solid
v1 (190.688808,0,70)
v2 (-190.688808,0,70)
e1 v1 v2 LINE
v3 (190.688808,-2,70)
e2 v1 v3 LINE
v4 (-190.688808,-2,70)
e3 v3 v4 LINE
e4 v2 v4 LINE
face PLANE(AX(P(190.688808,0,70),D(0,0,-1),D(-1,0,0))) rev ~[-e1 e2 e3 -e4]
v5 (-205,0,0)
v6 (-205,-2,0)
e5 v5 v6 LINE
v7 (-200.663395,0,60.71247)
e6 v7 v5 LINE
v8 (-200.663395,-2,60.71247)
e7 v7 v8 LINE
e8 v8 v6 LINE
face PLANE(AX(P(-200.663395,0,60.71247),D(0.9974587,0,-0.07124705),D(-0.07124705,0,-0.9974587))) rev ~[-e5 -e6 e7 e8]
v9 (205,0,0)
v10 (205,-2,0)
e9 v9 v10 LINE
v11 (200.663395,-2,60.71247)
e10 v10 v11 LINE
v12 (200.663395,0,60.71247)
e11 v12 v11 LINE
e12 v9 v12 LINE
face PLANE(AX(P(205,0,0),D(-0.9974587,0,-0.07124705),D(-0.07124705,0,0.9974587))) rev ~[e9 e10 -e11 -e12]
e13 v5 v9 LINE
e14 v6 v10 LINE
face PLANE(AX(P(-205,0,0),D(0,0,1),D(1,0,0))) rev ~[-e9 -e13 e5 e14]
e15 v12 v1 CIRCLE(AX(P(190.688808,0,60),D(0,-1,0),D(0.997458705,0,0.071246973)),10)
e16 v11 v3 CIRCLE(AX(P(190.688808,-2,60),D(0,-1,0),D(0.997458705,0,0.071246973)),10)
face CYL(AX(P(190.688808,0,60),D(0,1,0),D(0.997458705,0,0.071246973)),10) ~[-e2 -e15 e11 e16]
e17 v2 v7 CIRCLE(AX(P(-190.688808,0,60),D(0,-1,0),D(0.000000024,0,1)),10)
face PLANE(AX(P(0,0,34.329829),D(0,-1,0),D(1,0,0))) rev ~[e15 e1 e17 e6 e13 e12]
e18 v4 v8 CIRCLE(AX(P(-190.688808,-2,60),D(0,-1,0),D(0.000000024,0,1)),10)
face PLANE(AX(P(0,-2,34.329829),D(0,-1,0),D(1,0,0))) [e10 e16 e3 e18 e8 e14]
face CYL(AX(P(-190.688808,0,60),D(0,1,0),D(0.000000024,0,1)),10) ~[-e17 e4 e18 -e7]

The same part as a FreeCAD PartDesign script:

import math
import FreeCAD as App
import Part
import Sketcher

doc = App.newDocument("Part")
body = doc.addObject("PartDesign::Body", "Body")

# Sketch on XZ plane
sketch1 = body.newObject("Sketcher::SketchObject", "Sketch")
sketch1.AttachmentSupport = (doc.getObject("XZ_Plane"), [""])
sketch1.MapMode = "FlatFace"
sketch1.addGeometry([
    Part.LineSegment(App.Vector(-205, 0, 0), App.Vector(205, 0, 0)),  # 0
    Part.LineSegment(App.Vector(205, 0, 0), App.Vector(200.663395, 60.71247, 0)),  # 1
    Part.ArcOfCircle(Part.Circle(App.Vector(190.688808, 60, 0), App.Vector(0, 0, 1), 10), math.radians(4.085612), math.radians(90.000001)),  # 2
    Part.LineSegment(App.Vector(190.688808, 70, 0), App.Vector(-190.688808, 70, 0)),  # 3
    Part.ArcOfCircle(Part.Circle(App.Vector(-190.688808, 60, 0), App.Vector(0, 0, 1), 10), math.radians(89.999999), math.radians(175.914388)),  # 4
    Part.LineSegment(App.Vector(-200.663395, 60.71247, 0), App.Vector(-205, 0, 0)),  # 5
], False)
sketch1.addConstraint([
    Sketcher.Constraint("Coincident", 0, 2, 1, 1),
    Sketcher.Constraint("Tangent", 1, 2, 2, 1),
    Sketcher.Constraint("Tangent", 2, 2, 3, 1),
    Sketcher.Constraint("Tangent", 3, 2, 4, 1),
    Sketcher.Constraint("Tangent", 4, 2, 5, 1),
    Sketcher.Constraint("Coincident", 5, 2, 0, 1),
    Sketcher.Constraint("Horizontal", 0),
    Sketcher.Constraint("Horizontal", 3),
    Sketcher.Constraint("Equal", 2, 4),
    Sketcher.Constraint("Symmetric", 0, 2, 5, 2, -1, 1),
    Sketcher.Constraint("Horizontal", 1, 2, 4, 2),
    Sketcher.Constraint("Radius", 2, 10.0),
    Sketcher.Constraint("DistanceX", 0, 1, 0, 2, 410.0),
    Sketcher.Constraint("DistanceY", -1, 1, 2, 3, 60.0),
    Sketcher.Constraint("Distance", 1, 60.867152),
])
pad1 = body.newObject("PartDesign::Pad", "Pad")
pad1.Profile = sketch1
pad1.Length = 2

doc.recompute()
